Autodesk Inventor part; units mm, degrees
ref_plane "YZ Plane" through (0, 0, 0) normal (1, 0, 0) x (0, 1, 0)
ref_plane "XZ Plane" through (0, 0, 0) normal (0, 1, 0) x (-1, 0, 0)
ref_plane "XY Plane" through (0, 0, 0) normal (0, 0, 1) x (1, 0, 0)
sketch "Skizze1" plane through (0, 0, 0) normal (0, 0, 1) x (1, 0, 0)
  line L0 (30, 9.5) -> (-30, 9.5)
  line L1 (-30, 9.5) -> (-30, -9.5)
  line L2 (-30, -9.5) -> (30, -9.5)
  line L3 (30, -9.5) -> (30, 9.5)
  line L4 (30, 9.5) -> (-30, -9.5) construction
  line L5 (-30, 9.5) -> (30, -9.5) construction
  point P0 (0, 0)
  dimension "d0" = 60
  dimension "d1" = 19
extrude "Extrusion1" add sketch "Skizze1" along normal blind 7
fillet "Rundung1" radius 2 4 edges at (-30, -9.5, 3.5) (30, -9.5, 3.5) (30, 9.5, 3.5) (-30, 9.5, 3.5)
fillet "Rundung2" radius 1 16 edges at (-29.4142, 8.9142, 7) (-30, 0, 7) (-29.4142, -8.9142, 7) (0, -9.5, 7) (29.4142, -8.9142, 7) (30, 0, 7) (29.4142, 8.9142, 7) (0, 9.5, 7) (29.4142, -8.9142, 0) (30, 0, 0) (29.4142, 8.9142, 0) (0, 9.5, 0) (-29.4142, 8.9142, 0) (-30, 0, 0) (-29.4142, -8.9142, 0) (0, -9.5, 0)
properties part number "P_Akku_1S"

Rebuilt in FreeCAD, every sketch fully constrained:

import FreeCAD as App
import Part
import Sketcher


def edges_at(feature, points):
    """Names of the edges that pass closest to the given points."""
    edges = feature.Shape.Edges
    near = lambda p: min(range(len(edges)), key=lambda i: edges[i].distToShape(Part.Vertex(*p))[0])
    return sorted({f"Edge{near(p) + 1}" for p in points})

doc = App.newDocument("Part")
params = doc.addObject("Spreadsheet::Sheet", "Params")
for row, (alias, value) in enumerate([
    ("sketch1_width", "60 mm"),
    ("sketch1_height", "19 mm"),
    ("pad1_length", "7 mm"),
    ("fillet_radius", "2 mm"),
    ("fillet2_radius", "1 mm"),
], start=1):
    params.set(f"A{row}", alias)
    params.set(f"B{row}", "=" + value)
    params.setAlias(f"B{row}", alias)

body = doc.addObject("PartDesign::Body", "Body")

# Sketch on XY plane
sketch1 = doc.addObject("Sketcher::SketchObject", "Sketch")
body.addObject(sketch1)
sketch1.AttachmentSupport = (doc.XY_Plane, [""])
sketch1.MapMode = "FlatFace"
sketch1.addGeometry(Part.LineSegment(App.Vector(30, -10, 0), App.Vector(30, 10, 0)), False)
sketch1.addGeometry(Part.LineSegment(App.Vector(30, 10, 0), App.Vector(-30, 10, 0)), False)
sketch1.addGeometry(Part.LineSegment(App.Vector(-30, 10, 0), App.Vector(-30, -10, 0)), False)
sketch1.addGeometry(Part.LineSegment(App.Vector(-30, -10, 0), App.Vector(30, -10, 0)), False)
sketch1.addConstraint(Sketcher.Constraint("Coincident", 0, 2, 1, 1))
sketch1.addConstraint(Sketcher.Constraint("Coincident", 1, 2, 2, 1))
sketch1.addConstraint(Sketcher.Constraint("Coincident", 2, 2, 3, 1))
sketch1.addConstraint(Sketcher.Constraint("Coincident", 3, 2, 0, 1))
sketch1.addConstraint(Sketcher.Constraint("Vertical", 0))
sketch1.addConstraint(Sketcher.Constraint("Horizontal", 1))
sketch1.addConstraint(Sketcher.Constraint("Vertical", 2))
sketch1.addConstraint(Sketcher.Constraint("Horizontal", 3))
sketch1.addConstraint(Sketcher.Constraint("Symmetric", 0, 2, 2, 2, -1, 1))
sketch1.addConstraint(Sketcher.Constraint("DistanceX", 1, 2, 1, 1, 60.0))
sketch1.addConstraint(Sketcher.Constraint("DistanceY", 0, 1, 0, 2, 19.0))
sketch1.setExpression("Constraints[9]", "Params.sketch1_width")
sketch1.setExpression("Constraints[10]", "Params.sketch1_height")
pad1 = doc.addObject("PartDesign::Pad", "Pad")
body.addObject(pad1)
pad1.Profile = sketch1
pad1.setExpression("Length", "Params.pad1_length")
doc.recompute()

fillet = doc.addObject("PartDesign::Fillet", "Fillet")
body.addObject(fillet)
fillet.Base = (pad1, edges_at(pad1, [
    (-30, -9.5, 3.5),
    (30, -9.5, 3.5),
    (30, 9.5, 3.5),
    (-30, 9.5, 3.5),
]))
fillet.setExpression("Radius", "Params.fillet_radius")
doc.recompute()

fillet2 = doc.addObject("PartDesign::Fillet", "Fillet001")
body.addObject(fillet2)
fillet2.Base = (fillet, edges_at(fillet, [
    (-29.414, 8.914, 7),
    (-30, 0, 7),
    (-29.414, -8.914, 7),
    (0, -9.5, 7),
    (29.414, -8.914, 7),
    (30, 0, 7),
    (29.414, 8.914, 7),
    (0, 9.5, 7),
    (29.414, -8.914, 0),
    (30, 0, 0),
    (29.414, 8.914, 0),
    (0, 9.5, 0),
    (-29.414, 8.914, 0),
    (-30, 0, 0),
    (-29.414, -8.914, 0),
    (0, -9.5, 0),
]))
fillet2.setExpression("Radius", "Params.fillet2_radius")

doc.recompute()
